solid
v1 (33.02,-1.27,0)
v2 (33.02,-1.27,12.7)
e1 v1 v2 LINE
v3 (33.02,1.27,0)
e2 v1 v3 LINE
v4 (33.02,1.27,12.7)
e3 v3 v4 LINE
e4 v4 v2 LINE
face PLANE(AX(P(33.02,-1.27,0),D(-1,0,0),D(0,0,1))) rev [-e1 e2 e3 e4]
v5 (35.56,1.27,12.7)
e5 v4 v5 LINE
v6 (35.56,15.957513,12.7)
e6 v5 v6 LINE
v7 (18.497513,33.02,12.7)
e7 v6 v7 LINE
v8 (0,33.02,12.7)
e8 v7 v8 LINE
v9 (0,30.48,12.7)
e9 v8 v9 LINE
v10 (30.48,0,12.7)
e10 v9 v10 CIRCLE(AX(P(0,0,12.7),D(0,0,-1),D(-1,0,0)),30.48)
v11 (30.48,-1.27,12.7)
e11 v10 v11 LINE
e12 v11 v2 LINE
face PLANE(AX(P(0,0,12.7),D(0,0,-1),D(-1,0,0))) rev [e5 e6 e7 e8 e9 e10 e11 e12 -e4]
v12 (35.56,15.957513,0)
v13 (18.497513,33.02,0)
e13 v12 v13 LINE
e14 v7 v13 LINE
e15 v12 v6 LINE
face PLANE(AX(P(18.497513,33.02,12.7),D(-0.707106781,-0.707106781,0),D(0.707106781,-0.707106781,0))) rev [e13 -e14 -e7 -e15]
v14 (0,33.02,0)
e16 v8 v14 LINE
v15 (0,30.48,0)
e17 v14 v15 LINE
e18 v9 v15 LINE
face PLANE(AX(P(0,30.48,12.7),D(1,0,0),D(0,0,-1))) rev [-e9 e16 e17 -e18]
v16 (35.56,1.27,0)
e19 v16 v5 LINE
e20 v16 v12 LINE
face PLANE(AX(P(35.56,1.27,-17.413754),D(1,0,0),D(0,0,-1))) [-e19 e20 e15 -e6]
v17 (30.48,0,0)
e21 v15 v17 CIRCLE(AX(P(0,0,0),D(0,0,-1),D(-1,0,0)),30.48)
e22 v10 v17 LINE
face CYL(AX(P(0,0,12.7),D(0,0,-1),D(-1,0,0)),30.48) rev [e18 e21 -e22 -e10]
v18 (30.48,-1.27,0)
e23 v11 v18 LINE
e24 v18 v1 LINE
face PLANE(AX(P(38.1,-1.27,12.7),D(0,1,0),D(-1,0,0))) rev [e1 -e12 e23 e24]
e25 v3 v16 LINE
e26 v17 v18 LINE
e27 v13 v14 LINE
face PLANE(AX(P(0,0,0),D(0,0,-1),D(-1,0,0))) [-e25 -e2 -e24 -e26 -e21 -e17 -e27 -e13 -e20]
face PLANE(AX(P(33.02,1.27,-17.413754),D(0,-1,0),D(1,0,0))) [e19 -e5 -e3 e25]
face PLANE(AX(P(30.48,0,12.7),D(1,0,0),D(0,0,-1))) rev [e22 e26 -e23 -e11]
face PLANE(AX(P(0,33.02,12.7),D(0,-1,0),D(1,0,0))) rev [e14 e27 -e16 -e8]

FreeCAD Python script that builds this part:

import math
import FreeCAD as App
import Part
import Sketcher

V = App.Vector
Q = App.Units.Quantity


def add_polygon(sketch, points):
    """Adds a closed chain of lines whose ends are joined by coincident constraints."""
    first, n = sketch.GeometryCount, len(points)
    for a, b in zip(points, points[1:] + points[:1]):
        sketch.addGeometry(Part.LineSegment(App.Vector(*a, 0), App.Vector(*b, 0)), False)
    for i in range(n):
        sketch.addConstraint(Sketcher.Constraint("Coincident", first + i, 2, first + (i + 1) % n, 1))

doc = App.newDocument("Part")
body = doc.addObject("PartDesign::Body", "Body")

sketch1 = body.newObject("Sketcher::SketchObject", "Sketch")
sketch1.AttachmentSupport = (doc.getObject("XY_Plane"), [""])
sketch1.MapMode = "FlatFace"
sketch1.addGeometry(Part.LineSegment(V(0, 33.02, 0), V(0, 30.48, 0)), False)
sketch1.addGeometry(Part.ArcOfCircle(Part.Circle(V(0, 0, 0), V(0, 0, 1), 30.48), math.radians(0), math.radians(90)), False)
sketch1.addGeometry(Part.LineSegment(V(30.48, 0, 0), V(30.48, -1.27, 0)), False)
sketch1.addGeometry(Part.LineSegment(V(30.48, -1.27, 0), V(38.1, -1.27, 0)), False)
sketch1.addGeometry(Part.LineSegment(V(38.1, -1.27, 0), V(35.56, 15.957513, 0)), False)
sketch1.addGeometry(Part.LineSegment(V(35.56, 15.957513, 0), V(18.497513, 33.02, 0)), False)
sketch1.addGeometry(Part.LineSegment(V(18.497513, 33.02, 0), V(0, 33.02, 0)), False)
sketch1.addConstraint(Sketcher.Constraint("Coincident", 0, 2, 1, 2))
sketch1.addConstraint(Sketcher.Constraint("Tangent", 1, 1, 2, 1))
sketch1.addConstraint(Sketcher.Constraint("Coincident", 2, 2, 3, 1))
sketch1.addConstraint(Sketcher.Constraint("Coincident", 3, 2, 4, 1))
sketch1.addConstraint(Sketcher.Constraint("Coincident", 4, 2, 5, 1))
sketch1.addConstraint(Sketcher.Constraint("Coincident", 5, 2, 6, 1))
sketch1.addConstraint(Sketcher.Constraint("Coincident", 6, 2, 0, 1))
sketch1.addConstraint(Sketcher.Constraint("Vertical", 0))
sketch1.addConstraint(Sketcher.Constraint("Vertical", 2))
sketch1.addConstraint(Sketcher.Constraint("Horizontal", 3))
sketch1.addConstraint(Sketcher.Constraint("Horizontal", 6))
sketch1.addConstraint(Sketcher.Constraint("Coincident", 1, 3, -1, 1))
sketch1.addConstraint(Sketcher.Constraint("PointOnObject", 0, 2, -2))
sketch1.addConstraint(Sketcher.Constraint("Radius", 1, Q("1.2 in")))
sketch1.addConstraint(Sketcher.Constraint("DistanceX", 3, 1, 3, 2, Q("0.3 in")))
sketch1.addConstraint(Sketcher.Constraint("DistanceY", 0, 2, 0, 1, Q("0.1 in")))
sketch1.addConstraint(Sketcher.Constraint("Angle", 5, Q("135 deg")))
sketch1.addConstraint(Sketcher.Constraint("DistanceY", 2, 2, 2, 1, Q("0.05 in")))
sketch1.addConstraint(Sketcher.Constraint("DistanceX", -1, 1, 4, 2, Q("1.4 in")))
sketch1.addConstraint(Sketcher.Constraint("Distance", 5, Q("0.95 in")))
pad1 = body.newObject("PartDesign::Pad", "Pad")
pad1.Profile = sketch1
pad1.Length = Q("0.5 in")

sketch2 = body.newObject("Sketcher::SketchObject", "Sketch001")
sketch2.AttachmentSupport = (doc.getObject("XY_Plane"), [""])
sketch2.MapMode = "FlatFace"
sketch2.AttachmentOffset = App.Placement(V(0, 0, 0.5 * 25.4), App.Rotation())
add_polygon(sketch2, [(33.02, 24.13), (33.02, -1.27), (38.1, -1.27), (38.1, 24.13)])
sketch2.addConstraint(Sketcher.Constraint("Vertical", 0))
sketch2.addConstraint(Sketcher.Constraint("Horizontal", 1))
sketch2.addConstraint(Sketcher.Constraint("Vertical", 2))
sketch2.addConstraint(Sketcher.Constraint("Horizontal", 3))
sketch2.addConstraint(Sketcher.Constraint("DistanceY", 0, 2, 0, 1, Q("1 in")))
sketch2.addConstraint(Sketcher.Constraint("DistanceX", 1, 1, 1, 2, Q("0.2 in")))
sketch2.addConstraint(Sketcher.Constraint("DistanceX", -1, 1, 0, 2, Q("1.3 in")))
sketch2.addConstraint(Sketcher.Constraint("DistanceY", 0, 2, -1, 1, Q("0.05 in")))
pocket1 = body.newObject("PartDesign::Pocket", "Pocket")
pocket1.Profile = sketch2
pocket1.Type = "ThroughAll"

sketch3 = body.newObject("Sketcher::SketchObject", "Sketch002")
sketch3.AttachmentSupport = (doc.getObject("XY_Plane"), [""])
sketch3.MapMode = "FlatFace"
sketch3.AttachmentOffset = App.Placement(V(0, 0, 0.5 * 25.4), App.Rotation())
add_polygon(sketch3, [(33.02, 1.27), (35.56, 1.27), (35.56, 15.957513), (33.02, 18.497513)])
sketch3.addConstraint(Sketcher.Constraint("Horizontal", 0))
sketch3.addConstraint(Sketcher.Constraint("Vertical", 1))
sketch3.addConstraint(Sketcher.Constraint("Vertical", 3))
sketch3.addConstraint(Sketcher.Constraint("DistanceX", 0, 1, 0, 2, Q("0.1 in")))
sketch3.addConstraint(Sketcher.Constraint("Angle", 2, Q("135 deg")))
sketch3.addConstraint(Sketcher.Constraint("DistanceX", -1, 1, 0, 2, Q("1.4 in")))
sketch3.addConstraint(Sketcher.Constraint("DistanceY", -1, 1, 0, 2, Q("0.05 in")))
sketch3.addConstraint(Sketcher.Constraint("DistanceY", 1, 1, 1, 2, 14.687513))
pad2 = body.newObject("PartDesign::Pad", "Pad001")
pad2.Profile = sketch3
pad2.Length = Q("0.5 in")
pad2.Reversed = True

doc.recompute()
